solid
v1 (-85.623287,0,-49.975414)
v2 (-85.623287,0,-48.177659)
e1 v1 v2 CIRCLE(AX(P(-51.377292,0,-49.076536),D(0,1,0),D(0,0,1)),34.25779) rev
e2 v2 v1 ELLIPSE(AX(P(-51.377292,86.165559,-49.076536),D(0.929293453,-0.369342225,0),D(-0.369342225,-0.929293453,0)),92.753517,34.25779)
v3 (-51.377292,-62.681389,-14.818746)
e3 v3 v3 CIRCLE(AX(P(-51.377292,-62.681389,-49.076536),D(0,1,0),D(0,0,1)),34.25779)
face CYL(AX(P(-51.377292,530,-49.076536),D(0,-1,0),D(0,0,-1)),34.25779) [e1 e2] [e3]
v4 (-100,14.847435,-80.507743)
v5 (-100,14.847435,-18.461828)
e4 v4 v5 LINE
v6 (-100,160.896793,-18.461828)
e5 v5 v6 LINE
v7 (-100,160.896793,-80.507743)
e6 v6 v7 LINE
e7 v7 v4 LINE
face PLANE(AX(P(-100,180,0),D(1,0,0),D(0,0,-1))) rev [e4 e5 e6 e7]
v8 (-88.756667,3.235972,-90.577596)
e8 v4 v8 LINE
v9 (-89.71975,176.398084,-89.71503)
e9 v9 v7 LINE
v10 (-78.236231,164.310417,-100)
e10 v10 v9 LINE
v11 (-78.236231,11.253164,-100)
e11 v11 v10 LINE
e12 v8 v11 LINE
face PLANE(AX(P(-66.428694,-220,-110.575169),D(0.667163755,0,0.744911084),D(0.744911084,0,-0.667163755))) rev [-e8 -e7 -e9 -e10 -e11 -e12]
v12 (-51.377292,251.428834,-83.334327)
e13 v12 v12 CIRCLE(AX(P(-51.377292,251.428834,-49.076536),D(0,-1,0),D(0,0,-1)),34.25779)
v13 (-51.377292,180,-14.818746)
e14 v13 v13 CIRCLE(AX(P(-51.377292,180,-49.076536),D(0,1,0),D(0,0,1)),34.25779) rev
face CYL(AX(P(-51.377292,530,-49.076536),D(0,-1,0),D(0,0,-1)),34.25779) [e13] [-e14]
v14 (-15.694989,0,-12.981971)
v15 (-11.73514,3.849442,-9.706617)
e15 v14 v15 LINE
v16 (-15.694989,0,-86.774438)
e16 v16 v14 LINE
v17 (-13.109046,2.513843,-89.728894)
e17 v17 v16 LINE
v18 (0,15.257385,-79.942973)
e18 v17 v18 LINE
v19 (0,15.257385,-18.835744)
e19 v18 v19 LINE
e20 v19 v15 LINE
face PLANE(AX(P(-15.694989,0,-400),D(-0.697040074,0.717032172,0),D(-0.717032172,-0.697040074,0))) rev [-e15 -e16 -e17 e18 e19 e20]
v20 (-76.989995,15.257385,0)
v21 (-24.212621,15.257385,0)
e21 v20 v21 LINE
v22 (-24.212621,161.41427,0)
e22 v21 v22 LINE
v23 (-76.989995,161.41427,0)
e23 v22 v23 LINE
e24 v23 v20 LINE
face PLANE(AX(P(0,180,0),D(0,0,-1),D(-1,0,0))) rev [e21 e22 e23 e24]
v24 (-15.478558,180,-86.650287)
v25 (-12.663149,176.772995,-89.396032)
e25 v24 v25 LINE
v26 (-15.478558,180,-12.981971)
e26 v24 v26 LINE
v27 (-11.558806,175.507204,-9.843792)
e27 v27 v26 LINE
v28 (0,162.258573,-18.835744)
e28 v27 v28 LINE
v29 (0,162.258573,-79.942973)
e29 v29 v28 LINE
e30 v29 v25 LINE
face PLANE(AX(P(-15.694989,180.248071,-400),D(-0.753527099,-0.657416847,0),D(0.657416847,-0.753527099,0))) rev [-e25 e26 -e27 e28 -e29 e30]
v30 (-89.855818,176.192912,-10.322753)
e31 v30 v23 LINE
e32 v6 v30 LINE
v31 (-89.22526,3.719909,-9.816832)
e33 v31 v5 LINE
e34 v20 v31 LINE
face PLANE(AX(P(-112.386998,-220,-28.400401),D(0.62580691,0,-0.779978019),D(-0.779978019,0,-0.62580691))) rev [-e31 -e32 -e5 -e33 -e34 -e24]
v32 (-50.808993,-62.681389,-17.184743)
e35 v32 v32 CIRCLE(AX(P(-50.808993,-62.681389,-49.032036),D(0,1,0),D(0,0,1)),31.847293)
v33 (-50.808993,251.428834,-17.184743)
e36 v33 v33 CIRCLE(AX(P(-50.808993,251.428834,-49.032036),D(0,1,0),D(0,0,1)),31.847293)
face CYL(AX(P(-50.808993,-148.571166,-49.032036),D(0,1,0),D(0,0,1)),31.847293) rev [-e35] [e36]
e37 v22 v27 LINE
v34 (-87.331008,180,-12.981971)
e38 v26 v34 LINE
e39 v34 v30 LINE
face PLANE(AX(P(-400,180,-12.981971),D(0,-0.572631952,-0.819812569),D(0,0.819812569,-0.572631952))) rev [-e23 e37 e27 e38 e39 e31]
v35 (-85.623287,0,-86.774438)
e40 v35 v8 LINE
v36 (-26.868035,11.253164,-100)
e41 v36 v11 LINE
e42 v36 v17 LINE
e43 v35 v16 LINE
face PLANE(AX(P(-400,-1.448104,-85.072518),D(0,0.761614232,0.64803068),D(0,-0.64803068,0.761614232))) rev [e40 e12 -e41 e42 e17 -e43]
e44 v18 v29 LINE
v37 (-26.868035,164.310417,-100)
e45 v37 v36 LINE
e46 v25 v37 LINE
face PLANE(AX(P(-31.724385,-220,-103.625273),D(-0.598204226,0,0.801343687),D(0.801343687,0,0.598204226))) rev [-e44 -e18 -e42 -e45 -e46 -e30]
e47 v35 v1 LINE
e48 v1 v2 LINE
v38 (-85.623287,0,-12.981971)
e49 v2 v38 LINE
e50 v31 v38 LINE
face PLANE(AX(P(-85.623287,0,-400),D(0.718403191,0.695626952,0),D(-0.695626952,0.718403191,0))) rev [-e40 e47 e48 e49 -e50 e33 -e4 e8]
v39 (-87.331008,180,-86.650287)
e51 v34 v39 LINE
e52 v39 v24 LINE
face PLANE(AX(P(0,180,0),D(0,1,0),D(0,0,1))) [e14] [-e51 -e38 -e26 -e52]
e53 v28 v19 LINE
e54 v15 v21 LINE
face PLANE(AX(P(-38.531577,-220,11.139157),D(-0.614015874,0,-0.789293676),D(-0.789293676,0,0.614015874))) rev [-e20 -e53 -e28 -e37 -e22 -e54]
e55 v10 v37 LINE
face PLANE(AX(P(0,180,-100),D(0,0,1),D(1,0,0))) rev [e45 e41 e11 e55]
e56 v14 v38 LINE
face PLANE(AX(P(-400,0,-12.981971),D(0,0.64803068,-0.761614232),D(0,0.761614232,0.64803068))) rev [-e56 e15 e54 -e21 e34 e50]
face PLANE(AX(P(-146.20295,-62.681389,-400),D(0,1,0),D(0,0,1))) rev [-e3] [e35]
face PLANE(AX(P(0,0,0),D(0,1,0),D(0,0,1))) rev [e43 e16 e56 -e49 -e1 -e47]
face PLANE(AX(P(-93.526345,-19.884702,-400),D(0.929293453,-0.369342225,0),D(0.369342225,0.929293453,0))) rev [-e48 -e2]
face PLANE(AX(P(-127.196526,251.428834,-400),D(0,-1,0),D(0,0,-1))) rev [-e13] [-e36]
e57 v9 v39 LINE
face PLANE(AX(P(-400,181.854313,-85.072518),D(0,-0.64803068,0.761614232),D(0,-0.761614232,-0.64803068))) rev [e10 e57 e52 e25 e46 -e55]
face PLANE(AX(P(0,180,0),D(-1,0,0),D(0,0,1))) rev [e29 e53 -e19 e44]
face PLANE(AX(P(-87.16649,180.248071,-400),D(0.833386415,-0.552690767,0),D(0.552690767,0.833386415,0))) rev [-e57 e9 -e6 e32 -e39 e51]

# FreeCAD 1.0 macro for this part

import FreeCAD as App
import Part
import Sketcher

V = App.Vector
Q = App.Units.Quantity


def add_polygon(sketch, points):
    """Adds a closed chain of lines whose ends are joined by coincident constraints."""
    first, n = sketch.GeometryCount, len(points)
    for a, b in zip(points, points[1:] + points[:1]):
        sketch.addGeometry(Part.LineSegment(App.Vector(*a, 0), App.Vector(*b, 0)), False)
    for i in range(n):
        sketch.addConstraint(Sketcher.Constraint("Coincident", first + i, 2, first + (i + 1) % n, 1))

doc = App.newDocument("Part")
body = doc.addObject("PartDesign::Body", "Body")

sketch1 = body.newObject("Sketcher::SketchObject", "Sketch")
sketch1.AttachmentSupport = (doc.getObject("XZ_Plane"), [""])
sketch1.MapMode = "FlatFace"
add_polygon(sketch1, [(-100, -100), (-100, 0), (0, 0), (0, -100)])
sketch1.addConstraint(Sketcher.Constraint("Vertical", 0))
sketch1.addConstraint(Sketcher.Constraint("Horizontal", 1))
sketch1.addConstraint(Sketcher.Constraint("Vertical", 2))
sketch1.addConstraint(Sketcher.Constraint("Horizontal", 3))
sketch1.addConstraint(Sketcher.Constraint("Coincident", 1, 2, -1, 1))
sketch1.addConstraint(Sketcher.Constraint("Equal", 3, 0))
sketch1.addConstraint(Sketcher.Constraint("DistanceX", 1, 1, 1, 2, 100.0))
pad1 = body.newObject("PartDesign::Pad", "Pad")
pad1.Profile = sketch1
pad1.Length = 180
pad1.Reversed = True

sketch2 = body.newObject("Sketcher::SketchObject", "Sketch001")
sketch2.AttachmentSupport = (doc.getObject("XZ_Plane"), [""])
sketch2.MapMode = "FlatFace"
sketch2.AttachmentOffset = App.Placement(V(0, 0, -180), App.Rotation())
sketch2.addGeometry(Part.Circle(V(-51, -49, 0), V(0, 0, 1), 34), False)
sketch2.addConstraint(Sketcher.Constraint("Diameter", 0, 68.51558))
sketch2.addConstraint(Sketcher.Constraint("DistanceX", 0, 3, -1, 1, 51.377292))
sketch2.addConstraint(Sketcher.Constraint("DistanceY", 0, 3, -1, 1, 49.076536))
pad2 = body.newObject("PartDesign::Pad", "Pad001")
pad2.Profile = sketch2
pad2.Length = 700
pad2.Midplane = True

sketch3 = body.newObject("Sketcher::SketchObject", "Sketch002")
sketch3.AttachmentSupport = (doc.getObject("YZ_Plane"), [""])
sketch3.MapMode = "FlatFace"
add_polygon(sketch3, [(644, 19), (361, 19), (361, -133), (644, -133)])
sketch3.addConstraint(Sketcher.Constraint("Horizontal", 0))
sketch3.addConstraint(Sketcher.Constraint("Vertical", 1))
sketch3.addConstraint(Sketcher.Constraint("Horizontal", 2))
sketch3.addConstraint(Sketcher.Constraint("Vertical", 3))
sketch3.addConstraint(Sketcher.Constraint("DistanceX", 0, 2, 0, 1, 282.452416))
sketch3.addConstraint(Sketcher.Constraint("DistanceY", 1, 2, 1, 1, 152.006357))
sketch3.addConstraint(Sketcher.Constraint("DistanceY", -1, 1, 0, 2, 18.583279))
sketch3.addConstraint(Sketcher.Constraint("DistanceX", -1, 1, 2, 2, 643.500511))
pocket1 = body.newObject("PartDesign::Pocket", "Pocket")
pocket1.Profile = sketch3
pocket1.Length = 400

sketch4 = body.newObject("Sketcher::SketchObject", "Sketch003")
sketch4.AttachmentSupport = (doc.getObject("YZ_Plane"), [""])
sketch4.MapMode = "FlatFace"
add_polygon(sketch4, [(0, -13), (26, 9), (-15, 19)])
add_polygon(sketch4, [(19, -109), (-1, -85), (-3, -116)])
add_polygon(sketch4, [(149, 9), (180, -13), (193, 15)])
add_polygon(sketch4, [(182, -85), (160, -104), (199, -106)])
sketch4.addConstraint(Sketcher.Constraint("PointOnObject", 2, 2, -2))
sketch4.addConstraint(Sketcher.Constraint("Perpendicular", 0, 3))
sketch4.addConstraint(Sketcher.Constraint("Perpendicular", 3, 9))
sketch4.addConstraint(Sketcher.Constraint("Perpendicular", 4, 10))
sketch4.addConstraint(Sketcher.Constraint("Horizontal", 2, 2, 6, 2))
sketch4.addConstraint(Sketcher.Constraint("Horizontal", 0, 2, 8, 2))
sketch4.addConstraint(Sketcher.Constraint("Horizontal", 3, 2, 11, 2))
sketch4.addConstraint(Sketcher.Constraint("DistanceX", -1, 1, 6, 2, 180.0))
sketch4.addConstraint(Sketcher.Constraint("DistanceX", 3, 2, 0, 2, 27.2762))
sketch4.addConstraint(Sketcher.Constraint("DistanceX", 0, 2, 8, 2, 122.7095))
sketch4.addConstraint(Sketcher.Constraint("Distance", 1, 42.187411))
sketch4.addConstraint(Sketcher.Constraint("Distance", 2, 35.04328))
sketch4.addConstraint(Sketcher.Constraint("Distance", 3, 31.72882))
sketch4.addConstraint(Sketcher.Constraint("Distance", 5, 23.35685))
sketch4.addConstraint(Sketcher.Constraint("Distance", 7, 31.325991))
sketch4.addConstraint(Sketcher.Constraint("Distance", 10, 38.918982))
sketch4.addConstraint(Sketcher.Constraint("Distance", 11, 26.935711))
sketch4.addConstraint(Sketcher.Constraint("DistanceY", 2, 2, -1, 1, 12.981971))
sketch4.addConstraint(Sketcher.Constraint("DistanceY", 5, 2, -1, 1, 109.237639))
sketch4.addConstraint(Sketcher.Constraint("DistanceY", -1, 1, 7, 2, 15.418179))
sketch4.addConstraint(Sketcher.Constraint("DistanceX", -1, 1, 9, 2, 159.795921))
sketch4.addConstraint(Sketcher.Constraint("DistanceY", 10, 2, -1, 1, 106.132549))
sketch4.addConstraint(Sketcher.Constraint("DistanceX", 1, 2, 0, 2, 41.087562))
sketch4.addConstraint(Sketcher.Constraint("DistanceX", 4, 2, 3, 2, 1.819279))
pocket2 = body.newObject("PartDesign::Pocket", "Pocket001")
pocket2.Profile = sketch4
pocket2.Length = 400

sketch5 = body.newObject("Sketcher::SketchObject", "Sketch004")
sketch5.AttachmentSupport = (doc.getObject("XY_Plane"), [""])
sketch5.MapMode = "FlatFace"
add_polygon(sketch5, [(-86, 0), (-106, 21), (-122, 3), (-94, -20)])
add_polygon(sketch5, [(0, 15), (-16, 0), (11, -20), (12, 15)])
add_polygon(sketch5, [(-106, 151), (-87, 180), (-118, 201)])
add_polygon(sketch5, [(-16, 180), (8, 153), (0, 194)])
sketch5.addConstraint(Sketcher.Constraint("Horizontal", 7))
sketch5.addConstraint(Sketcher.Constraint("PointOnObject", 3, 2, -1))
sketch5.addConstraint(Sketcher.Constraint("PointOnObject", 4, 2, -1))
sketch5.addConstraint(Sketcher.Constraint("PointOnObject", 7, 2, -2))
sketch5.addConstraint(Sketcher.Constraint("PointOnObject", 12, 2, -2))
sketch5.addConstraint(Sketcher.Constraint("Perpendicular", 8, 9))
sketch5.addConstraint(Sketcher.Constraint("Perpendicular", 11, 13))
sketch5.addConstraint(Sketcher.Constraint("Horizontal", 2, 2, 5, 2))
sketch5.addConstraint(Sketcher.Constraint("Horizontal", 8, 2, 13, 2))
sketch5.addConstraint(Sketcher.Constraint("Vertical", 0, 2, 10, 2))
sketch5.addConstraint(Sketcher.Constraint("Vertical", 4, 2, 13, 2))
sketch5.addConstraint(Sketcher.Constraint("Angle", 4, Q("-135.809992 deg")))
sketch5.addConstraint(Sketcher.Constraint("Distance", 13, 20.828698))
sketch5.addConstraint(Sketcher.Constraint("DistanceY", 2, 2, -1, 1, 19.884702))
sketch5.addConstraint(Sketcher.Constraint("DistanceX", 3, 2, 4, 2, 69.928299))
sketch5.addConstraint(Sketcher.Constraint("DistanceX", 8, 2, 13, 2, 71.471502))
sketch5.addConstraint(Sketcher.Constraint("Distance", 1, 24.19219))
sketch5.addConstraint(Sketcher.Constraint("Distance", 4, 21.888821))
sketch5.addConstraint(Sketcher.Constraint("Distance", 5, 32.937621))
sketch5.addConstraint(Sketcher.Constraint("Distance", 8, 34.746171))
sketch5.addConstraint(Sketcher.Constraint("Distance", 9, 36.644441))
sketch5.addConstraint(Sketcher.Constraint("DistanceX", 7, 2, 7, 1, 12.122677))
sketch5.addConstraint(Sketcher.Constraint("DistanceX", 1, 2, -1, 1, 122.288862))
sketch5.addConstraint(Sketcher.Constraint("DistanceY", -1, 1, 1, 2, 3.20926))
sketch5.addConstraint(Sketcher.Constraint("DistanceY", -1, 1, 8, 2, 180.248071))
sketch5.addConstraint(Sketcher.Constraint("DistanceX", 9, 2, -1, 1, 117.705469))
sketch5.addConstraint(Sketcher.Constraint("DistanceX", 11, 2, 6, 2, 4.28891))
sketch5.addConstraint(Sketcher.Constraint("Distance", 2, 36.886494))
pocket3 = body.newObject("PartDesign::Pocket", "Pocket002")
pocket3.Profile = sketch5
pocket3.Length = 400

sketch6 = body.newObject("Sketcher::SketchObject", "Sketch005")
sketch6.AttachmentSupport = (doc.getObject("XZ_Plane"), [""])
sketch6.MapMode = "FlatFace"
sketch6.AttachmentOffset = App.Placement(V(0, 0, -180), App.Rotation())
add_polygon(sketch6, [(-64, 10), (-112, -28), (-125, 16), (-84, 16)])
add_polygon(sketch6, [(-97, -136), (-119, -78), (-118, -64), (-66, -111)])
add_polygon(sketch6, [(-25, 22), (11, 9), (17, -32), (-39, 11)])
add_polygon(sketch6, [(35, -107), (-17, -141), (-32, -104), (9, -73)])
sketch6.addConstraint(Sketcher.Constraint("Horizontal", 2))
sketch6.addConstraint(Sketcher.Constraint("Distance", 13, 39.826802))
sketch6.addConstraint(Sketcher.Constraint("Distance", 14, 51.2013))
sketch6.addConstraint(Sketcher.Constraint("DistanceY", 0, 2, -1, 1, 28.400401))
sketch6.addConstraint(Sketcher.Constraint("DistanceX", 1, 2, 8, 2, 135.741798))
sketch6.addConstraint(Sketcher.Constraint("DistanceY", 6, 2, 9, 2, 78.181401))
sketch6.addConstraint(Sketcher.Constraint("DistanceY", 3, 2, 10, 2, 0.926398))
sketch6.addConstraint(Sketcher.Constraint("DistanceX", 12, 2, 9, 2, 34.873801))
sketch6.addConstraint(Sketcher.Constraint("DistanceX", 13, 2, 12, 2, 14.278901))
sketch6.addConstraint(Sketcher.Constraint("Distance", 3, 20.830418))
sketch6.addConstraint(Sketcher.Constraint("Distance", 4, 62.207332))
sketch6.addConstraint(Sketcher.Constraint("Distance", 5, 13.510919))
sketch6.addConstraint(Sketcher.Constraint("Distance", 6, 69.289678))
sketch6.addConstraint(Sketcher.Constraint("Distance", 15, 43.081341))
sketch6.addConstraint(Sketcher.Constraint("DistanceX", 2, 1, 2, 2, 40.243323))
sketch6.addConstraint(Sketcher.Constraint("DistanceX", 1, 2, -1, 1, 124.64969))
sketch6.addConstraint(Sketcher.Constraint("DistanceY", -1, 1, 1, 2, 15.511928))
sketch6.addConstraint(Sketcher.Constraint("DistanceY", -1, 1, 3, 2, 10.212759))
sketch6.addConstraint(Sketcher.Constraint("DistanceY", 4, 2, -1, 1, 77.792689))
sketch6.addConstraint(Sketcher.Constraint("DistanceY", 6, 2, -1, 1, 110.575169))
sketch6.addConstraint(Sketcher.Constraint("DistanceY", -1, 1, 11, 2, 21.815841))
sketch6.addConstraint(Sketcher.Constraint("DistanceY", 14, 2, -1, 1, 72.996439))
sketch6.addConstraint(Sketcher.Constraint("DistanceY", 15, 2, -1, 1, 107.262521))
sketch6.addConstraint(Sketcher.Constraint("DistanceX", 1, 2, 0, 2, 12.262692))
sketch6.addConstraint(Sketcher.Constraint("DistanceX", 4, 2, 3, 2, 55.11426))
sketch6.addConstraint(Sketcher.Constraint("DistanceX", 4, 2, 5, 2, 1.332181))
sketch6.addConstraint(Sketcher.Constraint("DistanceY", 7, 2, 5, 2, 71.514149))
sketch6.addConstraint(Sketcher.Constraint("DistanceY", 9, 2, 8, 2, 41.367381))
sketch6.addConstraint(Sketcher.Constraint("DistanceX", 3, 2, 9, 2, 81.689581))
sketch6.addConstraint(Sketcher.Constraint("DistanceX", 2, 2, 10, 2, 45.87479))
sketch6.addConstraint(Sketcher.Constraint("DistanceX", 10, 2, 11, 2, 13.83517))
sketch6.addConstraint(Sketcher.Constraint("DistanceY", 12, 2, 7, 2, 4.942639))
pocket4 = body.newObject("PartDesign::Pocket", "Pocket003")
pocket4.Profile = sketch6
pocket4.Length = 400
pocket4.Reversed = True

sketch7 = body.newObject("Sketcher::SketchObject", "Sketch006")
sketch7.AttachmentSupport = (doc.getObject("XY_Plane"), [""])
sketch7.MapMode = "FlatFace"
add_polygon(sketch7, [(-146, -63), (-146, -210), (14, -210), (14, -63)])
sketch7.addConstraint(Sketcher.Constraint("Vertical", 0))
sketch7.addConstraint(Sketcher.Constraint("Horizontal", 1))
sketch7.addConstraint(Sketcher.Constraint("Vertical", 2))
sketch7.addConstraint(Sketcher.Constraint("Horizontal", 3))
sketch7.addConstraint(Sketcher.Constraint("DistanceX", 1, 1, 1, 2, 160.159382))
sketch7.addConstraint(Sketcher.Constraint("DistanceY", 0, 2, 0, 1, 147.362276))
sketch7.addConstraint(Sketcher.Constraint("DistanceX", 0, 2, -1, 1, 146.20295))
sketch7.addConstraint(Sketcher.Constraint("DistanceY", 2, 2, -1, 1, 62.681389))
pocket5 = body.newObject("PartDesign::Pocket", "Pocket004")
pocket5.Profile = sketch7
pocket5.Length = 400

sketch8 = body.newObject("Sketcher::SketchObject", "Sketch007")
sketch8.AttachmentSupport = (doc.getObject("XY_Plane"), [""])
sketch8.MapMode = "FlatFace"
add_polygon(sketch8, [(-127, 413), (-127, 251), (20, 251), (20, 413)])
sketch8.addConstraint(Sketcher.Constraint("Vertical", 0))
sketch8.addConstraint(Sketcher.Constraint("Horizontal", 1))
sketch8.addConstraint(Sketcher.Constraint("Vertical", 2))
sketch8.addConstraint(Sketcher.Constraint("Horizontal", 3))
sketch8.addConstraint(Sketcher.Constraint("DistanceX", 1, 1, 1, 2, 147.310745))
sketch8.addConstraint(Sketcher.Constraint("DistanceY", 0, 2, 0, 1, 162.038907))
sketch8.addConstraint(Sketcher.Constraint("DistanceX", -1, 1, 1, 2, 20.114219))
sketch8.addConstraint(Sketcher.Constraint("DistanceY", -1, 1, 2, 2, 413.467741))
pocket6 = body.newObject("PartDesign::Pocket", "Pocket005")
pocket6.Profile = sketch8
pocket6.Length = 400

sketch9 = body.newObject("Sketcher::SketchObject", "Sketch008")
sketch9.AttachmentSupport = (doc.getObject("XZ_Plane"), [""])
sketch9.MapMode = "FlatFace"
sketch9.AttachmentOffset = App.Placement(V(0, 0, -251.428834), App.Rotation())
sketch9.addGeometry(Part.Circle(V(-51, -49, 0), V(0, 0, 1), 32), False)
sketch9.addConstraint(Sketcher.Constraint("Diameter", 0, 63.694587))
sketch9.addConstraint(Sketcher.Constraint("DistanceX", 0, 3, -1, 1, 50.808993))
sketch9.addConstraint(Sketcher.Constraint("DistanceY", 0, 3, -1, 1, 49.032036))
pocket7 = body.newObject("PartDesign::Pocket", "Pocket006")
pocket7.Profile = sketch9
pocket7.Length = 400
pocket7.Reversed = True

doc.recompute()
